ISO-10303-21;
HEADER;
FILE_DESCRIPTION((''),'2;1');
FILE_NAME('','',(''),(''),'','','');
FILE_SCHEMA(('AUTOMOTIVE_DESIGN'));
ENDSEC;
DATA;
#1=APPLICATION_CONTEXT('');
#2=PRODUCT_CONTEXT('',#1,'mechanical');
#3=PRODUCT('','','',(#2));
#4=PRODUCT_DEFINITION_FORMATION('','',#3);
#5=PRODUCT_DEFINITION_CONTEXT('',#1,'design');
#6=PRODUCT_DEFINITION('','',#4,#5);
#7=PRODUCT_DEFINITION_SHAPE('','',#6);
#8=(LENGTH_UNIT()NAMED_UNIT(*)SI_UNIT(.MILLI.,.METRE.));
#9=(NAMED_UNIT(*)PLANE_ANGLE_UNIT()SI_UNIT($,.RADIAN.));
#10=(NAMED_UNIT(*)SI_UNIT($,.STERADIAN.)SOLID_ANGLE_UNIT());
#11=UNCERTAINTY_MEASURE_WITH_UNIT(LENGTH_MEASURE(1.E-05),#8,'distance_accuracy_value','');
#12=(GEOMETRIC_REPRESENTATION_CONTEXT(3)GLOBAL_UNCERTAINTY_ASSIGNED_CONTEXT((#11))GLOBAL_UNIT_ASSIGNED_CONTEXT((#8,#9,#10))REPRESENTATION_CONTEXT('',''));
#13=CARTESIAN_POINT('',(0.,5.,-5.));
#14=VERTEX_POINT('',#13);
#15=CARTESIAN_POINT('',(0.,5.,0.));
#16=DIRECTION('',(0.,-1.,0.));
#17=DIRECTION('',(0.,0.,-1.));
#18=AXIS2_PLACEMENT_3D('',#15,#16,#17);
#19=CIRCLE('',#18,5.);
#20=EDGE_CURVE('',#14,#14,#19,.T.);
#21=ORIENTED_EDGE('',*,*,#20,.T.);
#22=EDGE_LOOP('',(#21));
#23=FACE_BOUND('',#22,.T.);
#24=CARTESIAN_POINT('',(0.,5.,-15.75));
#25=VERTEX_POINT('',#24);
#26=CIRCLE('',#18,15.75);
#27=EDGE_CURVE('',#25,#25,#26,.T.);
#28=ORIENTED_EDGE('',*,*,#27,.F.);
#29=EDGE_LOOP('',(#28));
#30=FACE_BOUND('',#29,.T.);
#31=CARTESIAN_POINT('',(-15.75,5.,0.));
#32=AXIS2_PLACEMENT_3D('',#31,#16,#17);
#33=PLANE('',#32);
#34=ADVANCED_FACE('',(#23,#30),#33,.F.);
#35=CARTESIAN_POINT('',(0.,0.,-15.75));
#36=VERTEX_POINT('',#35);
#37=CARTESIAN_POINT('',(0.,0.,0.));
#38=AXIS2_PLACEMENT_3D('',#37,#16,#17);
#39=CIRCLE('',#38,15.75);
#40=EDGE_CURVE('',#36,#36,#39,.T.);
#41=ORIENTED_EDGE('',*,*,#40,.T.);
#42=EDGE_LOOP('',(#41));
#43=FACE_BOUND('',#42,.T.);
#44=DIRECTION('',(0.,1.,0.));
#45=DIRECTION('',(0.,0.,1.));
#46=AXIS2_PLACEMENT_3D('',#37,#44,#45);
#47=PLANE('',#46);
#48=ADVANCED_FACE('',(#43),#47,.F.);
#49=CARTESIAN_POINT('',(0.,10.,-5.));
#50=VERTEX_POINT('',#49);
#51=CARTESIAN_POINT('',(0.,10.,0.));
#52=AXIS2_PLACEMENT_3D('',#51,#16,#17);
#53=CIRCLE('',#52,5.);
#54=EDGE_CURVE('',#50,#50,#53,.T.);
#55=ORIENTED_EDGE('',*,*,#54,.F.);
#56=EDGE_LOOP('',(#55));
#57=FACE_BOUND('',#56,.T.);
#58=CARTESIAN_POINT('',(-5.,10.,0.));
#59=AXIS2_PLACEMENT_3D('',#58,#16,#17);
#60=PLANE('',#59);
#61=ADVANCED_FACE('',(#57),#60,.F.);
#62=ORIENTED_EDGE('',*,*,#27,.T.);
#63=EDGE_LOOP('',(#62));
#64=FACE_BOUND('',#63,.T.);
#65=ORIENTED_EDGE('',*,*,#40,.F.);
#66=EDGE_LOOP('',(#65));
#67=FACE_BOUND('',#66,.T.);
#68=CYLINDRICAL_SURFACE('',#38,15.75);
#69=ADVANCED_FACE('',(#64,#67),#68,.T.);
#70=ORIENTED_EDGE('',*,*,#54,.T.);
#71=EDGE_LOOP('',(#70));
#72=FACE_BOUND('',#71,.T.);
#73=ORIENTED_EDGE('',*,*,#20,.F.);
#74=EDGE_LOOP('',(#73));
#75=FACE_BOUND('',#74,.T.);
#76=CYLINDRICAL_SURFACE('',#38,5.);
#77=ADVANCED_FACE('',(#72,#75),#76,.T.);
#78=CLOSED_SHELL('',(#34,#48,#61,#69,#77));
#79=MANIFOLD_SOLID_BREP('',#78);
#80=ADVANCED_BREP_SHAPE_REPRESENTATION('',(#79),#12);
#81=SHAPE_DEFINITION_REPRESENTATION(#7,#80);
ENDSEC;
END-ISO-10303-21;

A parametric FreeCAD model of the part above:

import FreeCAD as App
import Part
import Sketcher


def add_polygon(sketch, points):
    """Adds a closed chain of lines whose ends are joined by coincident constraints."""
    first, n = sketch.GeometryCount, len(points)
    for a, b in zip(points, points[1:] + points[:1]):
        sketch.addGeometry(Part.LineSegment(App.Vector(*a, 0), App.Vector(*b, 0)), False)
    for i in range(n):
        sketch.addConstraint(Sketcher.Constraint("Coincident", first + i, 2, first + (i + 1) % n, 1))

doc = App.newDocument("Part")
params = doc.addObject("Spreadsheet::Sheet", "Params")
for row, (alias, value) in enumerate([
    ("sketch1_width", "5 mm"),
    ("sketch1_width2", "15.75 mm"),
    ("revolution_angle", "360 deg"),
], start=1):
    params.set(f"A{row}", alias)
    params.set(f"B{row}", "=" + value)
    params.setAlias(f"B{row}", alias)

body = doc.addObject("PartDesign::Body", "Body")

# Sketch on XY plane
sketch1 = body.newObject("Sketcher::SketchObject", "Sketch")
sketch1.AttachmentSupport = (doc.getObject("XY_Plane"), [""])
sketch1.MapMode = "FlatFace"
add_polygon(sketch1, [(-16, 0), (0, 0), (0, 10), (-5, 10), (-5, 5), (-16, 5)])  # lines 0-5
sketch1.addConstraint(Sketcher.Constraint("Horizontal", 0))
sketch1.addConstraint(Sketcher.Constraint("Vertical", 1))
sketch1.addConstraint(Sketcher.Constraint("Horizontal", 2))
sketch1.addConstraint(Sketcher.Constraint("Vertical", 3))
sketch1.addConstraint(Sketcher.Constraint("Horizontal", 4))
sketch1.addConstraint(Sketcher.Constraint("Vertical", 5))
sketch1.addConstraint(Sketcher.Constraint("Coincident", 0, 2, -1, 1))
sketch1.addConstraint(Sketcher.Constraint("Equal", 2, 3))
sketch1.addConstraint(Sketcher.Constraint("Equal", 3, 5))
sketch1.addConstraint(Sketcher.Constraint("DistanceX", 2, 2, 2, 1, 5.0))
sketch1.addConstraint(Sketcher.Constraint("DistanceX", 0, 1, 0, 2, 15.75))
sketch1.setExpression("Constraints[15]", "Params.sketch1_width")
sketch1.setExpression("Constraints[16]", "Params.sketch1_width2")
revolution = body.newObject("PartDesign::Revolution", "Revolution")
revolution.Profile = sketch1
revolution.ReferenceAxis = (sketch1, ["V_Axis"])
revolution.setExpression("Angle", "Params.revolution_angle")

doc.recompute()
